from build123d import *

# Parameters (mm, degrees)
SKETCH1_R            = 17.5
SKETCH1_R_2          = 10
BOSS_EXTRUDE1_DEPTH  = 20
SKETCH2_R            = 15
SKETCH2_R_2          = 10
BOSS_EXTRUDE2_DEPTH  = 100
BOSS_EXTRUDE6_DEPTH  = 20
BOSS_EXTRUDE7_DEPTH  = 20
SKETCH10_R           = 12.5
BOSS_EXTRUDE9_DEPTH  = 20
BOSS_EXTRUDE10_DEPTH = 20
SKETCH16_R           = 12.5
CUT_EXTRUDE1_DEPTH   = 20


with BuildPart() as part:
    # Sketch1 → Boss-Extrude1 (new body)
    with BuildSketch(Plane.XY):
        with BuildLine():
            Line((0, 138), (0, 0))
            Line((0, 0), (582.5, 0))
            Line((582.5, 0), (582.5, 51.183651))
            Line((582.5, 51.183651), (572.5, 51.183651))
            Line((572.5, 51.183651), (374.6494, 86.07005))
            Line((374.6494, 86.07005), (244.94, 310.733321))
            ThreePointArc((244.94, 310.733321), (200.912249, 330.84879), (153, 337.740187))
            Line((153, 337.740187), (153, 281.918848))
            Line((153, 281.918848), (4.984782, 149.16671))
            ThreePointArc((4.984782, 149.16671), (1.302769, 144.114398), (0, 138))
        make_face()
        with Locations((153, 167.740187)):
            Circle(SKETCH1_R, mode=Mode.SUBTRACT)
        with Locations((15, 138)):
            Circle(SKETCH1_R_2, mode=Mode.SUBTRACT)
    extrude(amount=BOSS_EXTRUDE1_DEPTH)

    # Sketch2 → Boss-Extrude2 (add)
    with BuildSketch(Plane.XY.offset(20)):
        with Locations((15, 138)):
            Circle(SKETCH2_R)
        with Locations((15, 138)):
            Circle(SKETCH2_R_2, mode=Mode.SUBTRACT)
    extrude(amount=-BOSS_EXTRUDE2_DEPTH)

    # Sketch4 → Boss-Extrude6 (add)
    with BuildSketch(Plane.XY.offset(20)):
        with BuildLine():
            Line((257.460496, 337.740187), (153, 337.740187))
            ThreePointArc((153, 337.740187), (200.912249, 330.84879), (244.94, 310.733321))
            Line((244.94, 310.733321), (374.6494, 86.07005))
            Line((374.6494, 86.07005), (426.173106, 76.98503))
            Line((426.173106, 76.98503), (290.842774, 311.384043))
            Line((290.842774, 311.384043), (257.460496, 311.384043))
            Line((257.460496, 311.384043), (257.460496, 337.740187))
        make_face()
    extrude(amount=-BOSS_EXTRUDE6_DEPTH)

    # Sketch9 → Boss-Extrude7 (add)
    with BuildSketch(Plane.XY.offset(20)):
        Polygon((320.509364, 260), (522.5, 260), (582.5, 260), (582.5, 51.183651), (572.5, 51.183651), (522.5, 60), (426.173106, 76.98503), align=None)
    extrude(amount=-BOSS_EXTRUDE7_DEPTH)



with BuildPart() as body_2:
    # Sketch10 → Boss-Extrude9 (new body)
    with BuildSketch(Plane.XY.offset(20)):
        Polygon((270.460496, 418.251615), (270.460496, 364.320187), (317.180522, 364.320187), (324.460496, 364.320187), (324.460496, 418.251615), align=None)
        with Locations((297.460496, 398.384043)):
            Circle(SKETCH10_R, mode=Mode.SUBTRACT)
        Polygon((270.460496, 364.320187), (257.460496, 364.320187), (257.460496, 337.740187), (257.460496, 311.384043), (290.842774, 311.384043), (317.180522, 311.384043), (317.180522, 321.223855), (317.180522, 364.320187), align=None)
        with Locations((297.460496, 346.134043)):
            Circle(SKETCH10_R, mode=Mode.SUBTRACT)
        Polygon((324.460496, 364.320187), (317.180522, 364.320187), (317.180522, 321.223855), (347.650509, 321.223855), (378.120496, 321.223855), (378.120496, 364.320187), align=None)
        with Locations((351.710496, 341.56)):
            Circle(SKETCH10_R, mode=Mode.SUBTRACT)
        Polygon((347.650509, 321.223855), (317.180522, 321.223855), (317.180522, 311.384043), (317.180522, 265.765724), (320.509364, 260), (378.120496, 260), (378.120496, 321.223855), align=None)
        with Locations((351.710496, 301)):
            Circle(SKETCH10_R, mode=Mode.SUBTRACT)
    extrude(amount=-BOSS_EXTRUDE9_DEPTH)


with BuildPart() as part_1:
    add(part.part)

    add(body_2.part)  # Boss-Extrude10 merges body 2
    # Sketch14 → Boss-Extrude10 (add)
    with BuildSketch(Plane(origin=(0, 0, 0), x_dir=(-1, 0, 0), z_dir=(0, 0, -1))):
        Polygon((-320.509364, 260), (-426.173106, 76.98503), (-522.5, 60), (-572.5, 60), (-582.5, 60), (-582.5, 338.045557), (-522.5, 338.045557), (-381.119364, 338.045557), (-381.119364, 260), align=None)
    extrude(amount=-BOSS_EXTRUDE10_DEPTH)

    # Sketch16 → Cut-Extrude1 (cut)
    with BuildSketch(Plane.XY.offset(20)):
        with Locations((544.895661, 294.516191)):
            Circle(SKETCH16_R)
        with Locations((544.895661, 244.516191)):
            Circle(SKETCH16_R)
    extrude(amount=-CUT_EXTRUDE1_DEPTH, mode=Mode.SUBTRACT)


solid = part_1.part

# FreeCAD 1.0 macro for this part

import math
import FreeCAD as App
import Part
import Sketcher
Q = App.Units.Quantity

doc = App.newDocument("Part")
body = doc.addObject("PartDesign::Body", "Body")

# Sketch on XY plane
sketch1 = body.newObject("Sketcher::SketchObject", "Sketch")
sketch1.AttachmentSupport = (doc.getObject("XY_Plane"), [""])
sketch1.MapMode = "FlatFace"
sketch1.addGeometry(Part.LineSegment(App.Vector(0, 138, 0), App.Vector(0, 0, 0)), False)
sketch1.addGeometry(Part.LineSegment(App.Vector(0, 0, 0), App.Vector(582, 0, 0)), False)
sketch1.addGeometry(Part.LineSegment(App.Vector(582, 0, 0), App.Vector(582, 51, 0)), False)
sketch1.addGeometry(Part.LineSegment(App.Vector(582, 51, 0), App.Vector(572, 51, 0)), False)
sketch1.addGeometry(Part.LineSegment(App.Vector(572, 51, 0), App.Vector(375, 86, 0)), False)
sketch1.addGeometry(Part.LineSegment(App.Vector(375, 86, 0), App.Vector(245, 311, 0)), False)
sketch1.addGeometry(Part.ArcOfCircle(Part.Circle(App.Vector(153, 168, 0), App.Vector(0, 0, 1), 170), math.radians(57), math.radians(90)), False)
sketch1.addGeometry(Part.LineSegment(App.Vector(153, 338, 0), App.Vector(153, 282, 0)), False)
sketch1.addGeometry(Part.LineSegment(App.Vector(153, 282, 0), App.Vector(5, 149, 0)), False)
sketch1.addGeometry(Part.ArcOfCircle(Part.Circle(App.Vector(15, 138, 0), App.Vector(0, 0, 1), 15), math.radians(132), math.radians(180)), False)
sketch1.addGeometry(Part.Circle(App.Vector(15, 138, 0), App.Vector(0, 0, 1), 10), False)
sketch1.addGeometry(Part.Circle(App.Vector(153, 168, 0), App.Vector(0, 0, 1), 18), False)
sketch1.addConstraint(Sketcher.Constraint("Coincident", 0, 2, 1, 1))
sketch1.addConstraint(Sketcher.Constraint("Coincident", 1, 2, 2, 1))
sketch1.addConstraint(Sketcher.Constraint("Coincident", 2, 2, 3, 1))
sketch1.addConstraint(Sketcher.Constraint("Coincident", 3, 2, 4, 1))
sketch1.addConstraint(Sketcher.Constraint("Coincident", 4, 2, 5, 1))
sketch1.addConstraint(Sketcher.Constraint("Coincident", 5, 2, 6, 1))
sketch1.addConstraint(Sketcher.Constraint("Coincident", 6, 2, 7, 1))
sketch1.addConstraint(Sketcher.Constraint("Coincident", 7, 2, 8, 1))
sketch1.addConstraint(Sketcher.Constraint("Tangent", 8, 2, 9, 1))
sketch1.addConstraint(Sketcher.Constraint("Tangent", 9, 2, 0, 1))
sketch1.addConstraint(Sketcher.Constraint("Vertical", 0))
sketch1.addConstraint(Sketcher.Constraint("Horizontal", 1))
sketch1.addConstraint(Sketcher.Constraint("Vertical", 2))
sketch1.addConstraint(Sketcher.Constraint("Horizontal", 3))
sketch1.addConstraint(Sketcher.Constraint("Vertical", 7))
sketch1.addConstraint(Sketcher.Constraint("Coincident", 0, 2, -1, 1))
sketch1.addConstraint(Sketcher.Constraint("Coincident", 10, 3, 9, 3))
sketch1.addConstraint(Sketcher.Constraint("Coincident", 11, 3, 6, 3))
sketch1.addConstraint(Sketcher.Constraint("Vertical", 11, 3, 6, 2))
sketch1.addConstraint(Sketcher.Constraint("Diameter", 10, Q("20 mm")))
sketch1.addConstraint(Sketcher.Constraint("Diameter", 11, Q("35 mm")))
sketch1.addConstraint(Sketcher.Constraint("Radius", 6, Q("170.000001 mm")))
sketch1.addConstraint(Sketcher.Constraint("Radius", 9, Q("15.000001 mm")))
sketch1.addConstraint(Sketcher.Constraint("DistanceX", 3, 2, 3, 1, Q("10 mm")))
sketch1.addConstraint(Sketcher.Constraint("DistanceY", 0, 2, 0, 1, Q("138 mm")))
sketch1.addConstraint(Sketcher.Constraint("Angle", 4, Q("170 deg")))
sketch1.addConstraint(Sketcher.Constraint("Angle", 5, Q("120 deg")))
sketch1.addConstraint(Sketcher.Constraint("DistanceX", 1, 1, 1, 2, Q("582.5 mm")))
sketch1.addConstraint(Sketcher.Constraint("DistanceX", -1, 1, 6, 3, Q("153 mm")))
sketch1.addConstraint(Sketcher.Constraint("DistanceX", -1, 1, 5, 2, Q("244.94 mm")))
sketch1.addConstraint(Sketcher.Constraint("Distance", 5, Q("259.4188 mm")))
sketch1.addConstraint(Sketcher.Constraint("DistanceY", 2, 1, 2, 2, Q("51.183651 mm")))
sketch1.addConstraint(Sketcher.Constraint("DistanceY", 7, 2, 7, 1, Q("55.821339 mm")))
pad1 = body.newObject("PartDesign::Pad", "Pad")
pad1.Profile = sketch1
pad1.Length = 20

# Sketch on XY plane
sketch2 = body.newObject("Sketcher::SketchObject", "Sketch001")
sketch2.AttachmentSupport = (doc.getObject("XY_Plane"), [""])
sketch2.MapMode = "FlatFace"
sketch2.AttachmentOffset = App.Placement(App.Vector(0, 0, 20), App.Rotation())
sketch2.addGeometry(Part.Circle(App.Vector(15, 138, 0), App.Vector(0, 0, 1), 15), False)
sketch2.addGeometry(Part.Circle(App.Vector(15, 138, 0), App.Vector(0, 0, 1), 10), False)
sketch2.addConstraint(Sketcher.Constraint("Coincident", 1, 3, 0, 3))
sketch2.addConstraint(Sketcher.Constraint("Diameter", 0, Q("30 mm")))
sketch2.addConstraint(Sketcher.Constraint("Diameter", 1, Q("20 mm")))
sketch2.addConstraint(Sketcher.Constraint("DistanceX", -1, 1, 0, 3, Q("15 mm")))
sketch2.addConstraint(Sketcher.Constraint("DistanceY", -1, 1, 0, 3, Q("138 mm")))
pad2 = body.newObject("PartDesign::Pad", "Pad001")
pad2.Profile = sketch2
pad2.Length = 100
pad2.Reversed = True

# Sketch on XY plane
sketch3 = body.newObject("Sketcher::SketchObject", "Sketch002")
sketch3.AttachmentSupport = (doc.getObject("XY_Plane"), [""])
sketch3.MapMode = "FlatFace"
sketch3.AttachmentOffset = App.Placement(App.Vector(0, 0, 20), App.Rotation())
sketch3.addGeometry(Part.LineSegment(App.Vector(257, 338, 0), App.Vector(153, 338, 0)), False)
sketch3.addGeometry(Part.ArcOfCircle(Part.Circle(App.Vector(153, 168, 0), App.Vector(0, 0, 1), 170), math.radians(57), math.radians(90)), False)
sketch3.addGeometry(Part.LineSegment(App.Vector(245, 311, 0), App.Vector(375, 86, 0)), False)
sketch3.addGeometry(Part.LineSegment(App.Vector(375, 86, 0), App.Vector(426, 77, 0)), False)
sketch3.addGeometry(Part.LineSegment(App.Vector(426, 77, 0), App.Vector(291, 311, 0)), False)
sketch3.addGeometry(Part.LineSegment(App.Vector(291, 311, 0), App.Vector(257, 311, 0)), False)
sketch3.addGeometry(Part.LineSegment(App.Vector(257, 311, 0), App.Vector(257, 338, 0)), False)
sketch3.addConstraint(Sketcher.Constraint("Tangent", 0, 2, 1, 2))
sketch3.addConstraint(Sketcher.Constraint("Coincident", 1, 1, 2, 1))
sketch3.addConstraint(Sketcher.Constraint("Coincident", 2, 2, 3, 1))
sketch3.addConstraint(Sketcher.Constraint("Coincident", 3, 2, 4, 1))
sketch3.addConstraint(Sketcher.Constraint("Coincident", 4, 2, 5, 1))
sketch3.addConstraint(Sketcher.Constraint("Coincident", 5, 2, 6, 1))
sketch3.addConstraint(Sketcher.Constraint("Coincident", 6, 2, 0, 1))
sketch3.addConstraint(Sketcher.Constraint("Horizontal", 0))
sketch3.addConstraint(Sketcher.Constraint("Horizontal", 5))
sketch3.addConstraint(Sketcher.Constraint("Vertical", 6))
sketch3.addConstraint(Sketcher.Constraint("Parallel", 2, 4))
sketch3.addConstraint(Sketcher.Constraint("Radius", 1, Q("170.000001 mm")))
sketch3.addConstraint(Sketcher.Constraint("Angle", 2, Q("-60 deg")))
sketch3.addConstraint(Sketcher.Constraint("Angle", 3, Q("-10.000001 deg")))
sketch3.addConstraint(Sketcher.Constraint("DistanceX", -1, 1, 1, 3, Q("153 mm")))
sketch3.addConstraint(Sketcher.Constraint("DistanceX", -1, 1, 1, 1, Q("244.94 mm")))
sketch3.addConstraint(Sketcher.Constraint("Distance", 2, Q("259.4188 mm")))
sketch3.addConstraint(Sketcher.Constraint("DistanceX", 5, 2, 5, 1, Q("33.382278 mm")))
sketch3.addConstraint(Sketcher.Constraint("DistanceX", 0, 2, 0, 1, Q("104.460496 mm")))
sketch3.addConstraint(Sketcher.Constraint("DistanceY", 6, 1, 6, 2, Q("26.356144 mm")))
sketch3.addConstraint(Sketcher.Constraint("DistanceY", -1, 1, 1, 1, Q("310.733321 mm")))
pad3 = body.newObject("PartDesign::Pad", "Pad002")
pad3.Profile = sketch3
pad3.Length = 20
pad3.Reversed = True

# Sketch on XY plane
sketch4 = body.newObject("Sketcher::SketchObject", "Sketch003")
sketch4.AttachmentSupport = (doc.getObject("XY_Plane"), [""])
sketch4.MapMode = "FlatFace"
sketch4.AttachmentOffset = App.Placement(App.Vector(0, 0, 20), App.Rotation())
sketch4.addGeometry(Part.LineSegment(App.Vector(582, 260, 0), App.Vector(321, 260, 0)), False)
sketch4.addGeometry(Part.LineSegment(App.Vector(321, 260, 0), App.Vector(426, 77, 0)), False)
sketch4.addGeometry(Part.LineSegment(App.Vector(426, 77, 0), App.Vector(522, 60, 0)), False)
sketch4.addGeometry(Part.LineSegment(App.Vector(522, 60, 0), App.Vector(572, 51, 0)), False)
sketch4.addGeometry(Part.LineSegment(App.Vector(572, 51, 0), App.Vector(582, 51, 0)), False)
sketch4.addGeometry(Part.LineSegment(App.Vector(582, 51, 0), App.Vector(582, 260, 0)), False)
sketch4.addConstraint(Sketcher.Constraint("Coincident", 0, 2, 1, 1))
sketch4.addConstraint(Sketcher.Constraint("Coincident", 1, 2, 2, 1))
sketch4.addConstraint(Sketcher.Constraint("Coincident", 2, 2, 3, 1))
sketch4.addConstraint(Sketcher.Constraint("Coincident", 3, 2, 4, 1))
sketch4.addConstraint(Sketcher.Constraint("Coincident", 4, 2, 5, 1))
sketch4.addConstraint(Sketcher.Constraint("Coincident", 5, 2, 0, 1))
sketch4.addConstraint(Sketcher.Constraint("Horizontal", 0))
sketch4.addConstraint(Sketcher.Constraint("Horizontal", 4))
sketch4.addConstraint(Sketcher.Constraint("Vertical", 5))
sketch4.addConstraint(Sketcher.Constraint("Parallel", 2, 3))
sketch4.addConstraint(Sketcher.Constraint("DistanceX", 4, 1, 4, 2, Q("10 mm")))
sketch4.addConstraint(Sketcher.Constraint("Angle", 1, Q("-60 deg")))
sketch4.addConstraint(Sketcher.Constraint("Angle", 2, Q("-10 deg")))
sketch4.addConstraint(Sketcher.Constraint("DistanceY", -1, 1, 0, 2, Q("260 mm")))
sketch4.addConstraint(Sketcher.Constraint("DistanceY", -1, 1, 2, 2, Q("60 mm")))
sketch4.addConstraint(Sketcher.Constraint("DistanceX", 2, 2, 3, 2, Q("50 mm")))
sketch4.addConstraint(Sketcher.Constraint("DistanceX", -1, 1, 2, 2, Q("522.5 mm")))
sketch4.addConstraint(Sketcher.Constraint("Distance", 2, Q("97.812892 mm")))
pad4 = body.newObject("PartDesign::Pad", "Pad003")
pad4.Profile = sketch4
pad4.Length = 20
pad4.Reversed = True
body2 = doc.addObject("PartDesign::Body", "Body001")

# Sketch on XY plane
sketch5 = body2.newObject("Sketcher::SketchObject", "Sketch004")
sketch5.AttachmentSupport = (doc.getObject("XY_Plane001"), [""])
sketch5.MapMode = "FlatFace"
sketch5.AttachmentOffset = App.Placement(App.Vector(0, 0, 20), App.Rotation())
sketch5.addGeometry(Part.LineSegment(App.Vector(270, 418, 0), App.Vector(270, 364, 0)), False)
sketch5.addGeometry(Part.LineSegment(App.Vector(270, 364, 0), App.Vector(257, 364, 0)), False)
sketch5.addGeometry(Part.LineSegment(App.Vector(257, 364, 0), App.Vector(257, 311, 0)), False)
sketch5.addGeometry(Part.LineSegment(App.Vector(257, 311, 0), App.Vector(317, 311, 0)), False)
sketch5.addGeometry(Part.LineSegment(App.Vector(317, 311, 0), App.Vector(317, 266, 0)), False)
sketch5.addGeometry(Part.LineSegment(App.Vector(317, 266, 0), App.Vector(321, 260, 0)), False)
sketch5.addGeometry(Part.LineSegment(App.Vector(321, 260, 0), App.Vector(378, 260, 0)), False)
sketch5.addGeometry(Part.LineSegment(App.Vector(378, 260, 0), App.Vector(378, 364, 0)), False)
sketch5.addGeometry(Part.LineSegment(App.Vector(378, 364, 0), App.Vector(324, 364, 0)), False)
sketch5.addGeometry(Part.LineSegment(App.Vector(324, 364, 0), App.Vector(324, 418, 0)), False)
sketch5.addGeometry(Part.LineSegment(App.Vector(324, 418, 0), App.Vector(270, 418, 0)), False)
sketch5.addGeometry(Part.Circle(App.Vector(297, 346, 0), App.Vector(0, 0, 1), 12), False)
sketch5.addGeometry(Part.Circle(App.Vector(352, 301, 0), App.Vector(0, 0, 1), 12), False)
sketch5.addGeometry(Part.Circle(App.Vector(352, 342, 0), App.Vector(0, 0, 1), 12), False)
sketch5.addGeometry(Part.Circle(App.Vector(297, 398, 0), App.Vector(0, 0, 1), 12), False)
sketch5.addConstraint(Sketcher.Constraint("Coincident", 0, 2, 1, 1))
sketch5.addConstraint(Sketcher.Constraint("Coincident", 1, 2, 2, 1))
sketch5.addConstraint(Sketcher.Constraint("Coincident", 2, 2, 3, 1))
sketch5.addConstraint(Sketcher.Constraint("Coincident", 3, 2, 4, 1))
sketch5.addConstraint(Sketcher.Constraint("Coincident", 4, 2, 5, 1))
sketch5.addConstraint(Sketcher.Constraint("Coincident", 5, 2, 6, 1))
sketch5.addConstraint(Sketcher.Constraint("Coincident", 6, 2, 7, 1))
sketch5.addConstraint(Sketcher.Constraint("Coincident", 7, 2, 8, 1))
sketch5.addConstraint(Sketcher.Constraint("Coincident", 8, 2, 9, 1))
sketch5.addConstraint(Sketcher.Constraint("Coincident", 9, 2, 10, 1))
sketch5.addConstraint(Sketcher.Constraint("Coincident", 10, 2, 0, 1))
sketch5.addConstraint(Sketcher.Constraint("Vertical", 0))
sketch5.addConstraint(Sketcher.Constraint("Horizontal", 1))
sketch5.addConstraint(Sketcher.Constraint("Vertical", 2))
sketch5.addConstraint(Sketcher.Constraint("Horizontal", 3))
sketch5.addConstraint(Sketcher.Constraint("Vertical", 4))
sketch5.addConstraint(Sketcher.Constraint("Horizontal", 6))
sketch5.addConstraint(Sketcher.Constraint("Vertical", 7))
sketch5.addConstraint(Sketcher.Constraint("Horizontal", 8))
sketch5.addConstraint(Sketcher.Constraint("Vertical", 9))
sketch5.addConstraint(Sketcher.Constraint("Horizontal", 10))
sketch5.addConstraint(Sketcher.Constraint("Equal", 11, 12))
sketch5.addConstraint(Sketcher.Constraint("Equal", 12, 13))
sketch5.addConstraint(Sketcher.Constraint("Equal", 13, 14))
sketch5.addConstraint(Sketcher.Constraint("Horizontal", 1, 2, 7, 2))
sketch5.addConstraint(Sketcher.Constraint("Vertical", 12, 3, 13, 3))
sketch5.addConstraint(Sketcher.Constraint("Vertical", 11, 3, 14, 3))
sketch5.addConstraint(Sketcher.Constraint("Diameter", 11, Q("25 mm")))
sketch5.addConstraint(Sketcher.Constraint("DistanceX", 1, 2, 1, 1, Q("13 mm")))
sketch5.addConstraint(Sketcher.Constraint("DistanceX", 10, 2, 10, 1, Q("54 mm")))
sketch5.addConstraint(Sketcher.Constraint("Angle", 5, Q("-60.000002 deg")))
sketch5.addConstraint(Sketcher.Constraint("DistanceY", -1, 1, 12, 3, Q("301 mm")))
sketch5.addConstraint(Sketcher.Constraint("DistanceY", -1, 1, 5, 2, Q("260 mm")))
sketch5.addConstraint(Sketcher.Constraint("DistanceX", 0, 2, 11, 3, Q("27 mm")))
sketch5.addConstraint(Sketcher.Constraint("DistanceY", 2, 2, 14, 3, Q("87 mm")))
sketch5.addConstraint(Sketcher.Constraint("DistanceX", 8, 2, 8, 1, Q("53.66 mm")))
sketch5.addConstraint(Sketcher.Constraint("DistanceY", -1, 1, 13, 3, Q("341.56 mm")))
sketch5.addConstraint(Sketcher.Constraint("DistanceX", 11, 3, 12, 3, Q("54.25 mm")))
sketch5.addConstraint(Sketcher.Constraint("DistanceY", 11, 3, 14, 3, Q("52.25 mm")))
sketch5.addConstraint(Sketcher.Constraint("DistanceX", 6, 1, 6, 2, Q("57.611132 mm")))
sketch5.addConstraint(Sketcher.Constraint("DistanceY", 0, 2, 0, 1, Q("53.931428 mm")))
sketch5.addConstraint(Sketcher.Constraint("DistanceY", 4, 2, 4, 1, Q("45.618319 mm")))
sketch5.addConstraint(Sketcher.Constraint("DistanceX", 3, 1, 3, 2, Q("59.720026 mm")))
sketch5.addConstraint(Sketcher.Constraint("DistanceY", 2, 2, 2, 1, Q("52.936144 mm")))
sketch5.addConstraint(Sketcher.Constraint("DistanceX", -1, 1, 3, 2, Q("317.180522 mm")))
pad5 = body2.newObject("PartDesign::Pad", "Pad004")
pad5.Profile = sketch5
pad5.Length = 20
pad5.Reversed = True
doc.recompute()

boolean = body.newObject("PartDesign::Boolean", "Boolean")
boolean.Type = "Fuse"
boolean.addObjects([body2])

# Sketch on XY plane
sketch6 = body.newObject("Sketcher::SketchObject", "Sketch005")
sketch6.AttachmentSupport = (doc.getObject("XY_Plane"), [""])
sketch6.MapMode = "FlatFace"
sketch6.addGeometry(Part.LineSegment(App.Vector(426, 77, 0), App.Vector(321, 260, 0)), False)
sketch6.addGeometry(Part.LineSegment(App.Vector(321, 260, 0), App.Vector(381, 260, 0)), False)
sketch6.addGeometry(Part.LineSegment(App.Vector(381, 260, 0), App.Vector(381, 338, 0)), False)
sketch6.addGeometry(Part.LineSegment(App.Vector(381, 338, 0), App.Vector(582, 338, 0)), False)
sketch6.addGeometry(Part.LineSegment(App.Vector(582, 338, 0), App.Vector(582, 60, 0)), False)
sketch6.addGeometry(Part.LineSegment(App.Vector(582, 60, 0), App.Vector(522, 60, 0)), False)
sketch6.addGeometry(Part.LineSegment(App.Vector(522, 60, 0), App.Vector(426, 77, 0)), False)
sketch6.addConstraint(Sketcher.Constraint("Coincident", 0, 2, 1, 1))
sketch6.addConstraint(Sketcher.Constraint("Coincident", 1, 2, 2, 1))
sketch6.addConstraint(Sketcher.Constraint("Coincident", 2, 2, 3, 1))
sketch6.addConstraint(Sketcher.Constraint("Coincident", 3, 2, 4, 1))
sketch6.addConstraint(Sketcher.Constraint("Coincident", 4, 2, 5, 1))
sketch6.addConstraint(Sketcher.Constraint("Coincident", 5, 2, 6, 1))
sketch6.addConstraint(Sketcher.Constraint("Coincident", 6, 2, 0, 1))
sketch6.addConstraint(Sketcher.Constraint("Horizontal", 1))
sketch6.addConstraint(Sketcher.Constraint("Vertical", 2))
sketch6.addConstraint(Sketcher.Constraint("Horizontal", 3))
sketch6.addConstraint(Sketcher.Constraint("Vertical", 4))
sketch6.addConstraint(Sketcher.Constraint("Horizontal", 5))
sketch6.addConstraint(Sketcher.Constraint("DistanceX", 5, 2, 5, 1, Q("60 mm")))
sketch6.addConstraint(Sketcher.Constraint("Angle", 0, Q("120 deg")))
sketch6.addConstraint(Sketcher.Constraint("Angle", 6, Q("170 deg")))
sketch6.addConstraint(Sketcher.Constraint("DistanceY", -1, 1, 0, 2, Q("260 mm")))
sketch6.addConstraint(Sketcher.Constraint("DistanceY", -1, 1, 4, 2, Q("60 mm")))
sketch6.addConstraint(Sketcher.Constraint("DistanceX", 1, 1, 1, 2, Q("60.61 mm")))
sketch6.addConstraint(Sketcher.Constraint("DistanceX", -1, 1, 3, 2, Q("582.5 mm")))
sketch6.addConstraint(Sketcher.Constraint("Distance", 6, Q("97.812892 mm")))
sketch6.addConstraint(Sketcher.Constraint("DistanceY", 2, 1, 2, 2, Q("78.045557 mm")))
pad6 = body.newObject("PartDesign::Pad", "Pad005")
pad6.Profile = sketch6
pad6.Length = 20

# Sketch on XY plane
sketch7 = body.newObject("Sketcher::SketchObject", "Sketch006")
sketch7.AttachmentSupport = (doc.getObject("XY_Plane"), [""])
sketch7.MapMode = "FlatFace"
sketch7.AttachmentOffset = App.Placement(App.Vector(0, 0, 20), App.Rotation())
sketch7.addGeometry(Part.Circle(App.Vector(545, 295, 0), App.Vector(0, 0, 1), 12), False)
sketch7.addGeometry(Part.Circle(App.Vector(545, 245, 0), App.Vector(0, 0, 1), 12), False)
sketch7.addConstraint(Sketcher.Constraint("Equal", 0, 1))
sketch7.addConstraint(Sketcher.Constraint("Vertical", 0, 3, 1, 3))
sketch7.addConstraint(Sketcher.Constraint("Diameter", 0, Q("25 mm")))
sketch7.addConstraint(Sketcher.Constraint("DistanceY", 1, 3, 0, 3, Q("50 mm")))
sketch7.addConstraint(Sketcher.Constraint("DistanceX", -1, 1, 0, 3, Q("544.895661 mm")))
sketch7.addConstraint(Sketcher.Constraint("DistanceY", -1, 1, 0, 3, Q("294.516191 mm")))
pocket1 = body.newObject("PartDesign::Pocket", "Pocket")
pocket1.Profile = sketch7
pocket1.Length = 20

doc.recompute()
